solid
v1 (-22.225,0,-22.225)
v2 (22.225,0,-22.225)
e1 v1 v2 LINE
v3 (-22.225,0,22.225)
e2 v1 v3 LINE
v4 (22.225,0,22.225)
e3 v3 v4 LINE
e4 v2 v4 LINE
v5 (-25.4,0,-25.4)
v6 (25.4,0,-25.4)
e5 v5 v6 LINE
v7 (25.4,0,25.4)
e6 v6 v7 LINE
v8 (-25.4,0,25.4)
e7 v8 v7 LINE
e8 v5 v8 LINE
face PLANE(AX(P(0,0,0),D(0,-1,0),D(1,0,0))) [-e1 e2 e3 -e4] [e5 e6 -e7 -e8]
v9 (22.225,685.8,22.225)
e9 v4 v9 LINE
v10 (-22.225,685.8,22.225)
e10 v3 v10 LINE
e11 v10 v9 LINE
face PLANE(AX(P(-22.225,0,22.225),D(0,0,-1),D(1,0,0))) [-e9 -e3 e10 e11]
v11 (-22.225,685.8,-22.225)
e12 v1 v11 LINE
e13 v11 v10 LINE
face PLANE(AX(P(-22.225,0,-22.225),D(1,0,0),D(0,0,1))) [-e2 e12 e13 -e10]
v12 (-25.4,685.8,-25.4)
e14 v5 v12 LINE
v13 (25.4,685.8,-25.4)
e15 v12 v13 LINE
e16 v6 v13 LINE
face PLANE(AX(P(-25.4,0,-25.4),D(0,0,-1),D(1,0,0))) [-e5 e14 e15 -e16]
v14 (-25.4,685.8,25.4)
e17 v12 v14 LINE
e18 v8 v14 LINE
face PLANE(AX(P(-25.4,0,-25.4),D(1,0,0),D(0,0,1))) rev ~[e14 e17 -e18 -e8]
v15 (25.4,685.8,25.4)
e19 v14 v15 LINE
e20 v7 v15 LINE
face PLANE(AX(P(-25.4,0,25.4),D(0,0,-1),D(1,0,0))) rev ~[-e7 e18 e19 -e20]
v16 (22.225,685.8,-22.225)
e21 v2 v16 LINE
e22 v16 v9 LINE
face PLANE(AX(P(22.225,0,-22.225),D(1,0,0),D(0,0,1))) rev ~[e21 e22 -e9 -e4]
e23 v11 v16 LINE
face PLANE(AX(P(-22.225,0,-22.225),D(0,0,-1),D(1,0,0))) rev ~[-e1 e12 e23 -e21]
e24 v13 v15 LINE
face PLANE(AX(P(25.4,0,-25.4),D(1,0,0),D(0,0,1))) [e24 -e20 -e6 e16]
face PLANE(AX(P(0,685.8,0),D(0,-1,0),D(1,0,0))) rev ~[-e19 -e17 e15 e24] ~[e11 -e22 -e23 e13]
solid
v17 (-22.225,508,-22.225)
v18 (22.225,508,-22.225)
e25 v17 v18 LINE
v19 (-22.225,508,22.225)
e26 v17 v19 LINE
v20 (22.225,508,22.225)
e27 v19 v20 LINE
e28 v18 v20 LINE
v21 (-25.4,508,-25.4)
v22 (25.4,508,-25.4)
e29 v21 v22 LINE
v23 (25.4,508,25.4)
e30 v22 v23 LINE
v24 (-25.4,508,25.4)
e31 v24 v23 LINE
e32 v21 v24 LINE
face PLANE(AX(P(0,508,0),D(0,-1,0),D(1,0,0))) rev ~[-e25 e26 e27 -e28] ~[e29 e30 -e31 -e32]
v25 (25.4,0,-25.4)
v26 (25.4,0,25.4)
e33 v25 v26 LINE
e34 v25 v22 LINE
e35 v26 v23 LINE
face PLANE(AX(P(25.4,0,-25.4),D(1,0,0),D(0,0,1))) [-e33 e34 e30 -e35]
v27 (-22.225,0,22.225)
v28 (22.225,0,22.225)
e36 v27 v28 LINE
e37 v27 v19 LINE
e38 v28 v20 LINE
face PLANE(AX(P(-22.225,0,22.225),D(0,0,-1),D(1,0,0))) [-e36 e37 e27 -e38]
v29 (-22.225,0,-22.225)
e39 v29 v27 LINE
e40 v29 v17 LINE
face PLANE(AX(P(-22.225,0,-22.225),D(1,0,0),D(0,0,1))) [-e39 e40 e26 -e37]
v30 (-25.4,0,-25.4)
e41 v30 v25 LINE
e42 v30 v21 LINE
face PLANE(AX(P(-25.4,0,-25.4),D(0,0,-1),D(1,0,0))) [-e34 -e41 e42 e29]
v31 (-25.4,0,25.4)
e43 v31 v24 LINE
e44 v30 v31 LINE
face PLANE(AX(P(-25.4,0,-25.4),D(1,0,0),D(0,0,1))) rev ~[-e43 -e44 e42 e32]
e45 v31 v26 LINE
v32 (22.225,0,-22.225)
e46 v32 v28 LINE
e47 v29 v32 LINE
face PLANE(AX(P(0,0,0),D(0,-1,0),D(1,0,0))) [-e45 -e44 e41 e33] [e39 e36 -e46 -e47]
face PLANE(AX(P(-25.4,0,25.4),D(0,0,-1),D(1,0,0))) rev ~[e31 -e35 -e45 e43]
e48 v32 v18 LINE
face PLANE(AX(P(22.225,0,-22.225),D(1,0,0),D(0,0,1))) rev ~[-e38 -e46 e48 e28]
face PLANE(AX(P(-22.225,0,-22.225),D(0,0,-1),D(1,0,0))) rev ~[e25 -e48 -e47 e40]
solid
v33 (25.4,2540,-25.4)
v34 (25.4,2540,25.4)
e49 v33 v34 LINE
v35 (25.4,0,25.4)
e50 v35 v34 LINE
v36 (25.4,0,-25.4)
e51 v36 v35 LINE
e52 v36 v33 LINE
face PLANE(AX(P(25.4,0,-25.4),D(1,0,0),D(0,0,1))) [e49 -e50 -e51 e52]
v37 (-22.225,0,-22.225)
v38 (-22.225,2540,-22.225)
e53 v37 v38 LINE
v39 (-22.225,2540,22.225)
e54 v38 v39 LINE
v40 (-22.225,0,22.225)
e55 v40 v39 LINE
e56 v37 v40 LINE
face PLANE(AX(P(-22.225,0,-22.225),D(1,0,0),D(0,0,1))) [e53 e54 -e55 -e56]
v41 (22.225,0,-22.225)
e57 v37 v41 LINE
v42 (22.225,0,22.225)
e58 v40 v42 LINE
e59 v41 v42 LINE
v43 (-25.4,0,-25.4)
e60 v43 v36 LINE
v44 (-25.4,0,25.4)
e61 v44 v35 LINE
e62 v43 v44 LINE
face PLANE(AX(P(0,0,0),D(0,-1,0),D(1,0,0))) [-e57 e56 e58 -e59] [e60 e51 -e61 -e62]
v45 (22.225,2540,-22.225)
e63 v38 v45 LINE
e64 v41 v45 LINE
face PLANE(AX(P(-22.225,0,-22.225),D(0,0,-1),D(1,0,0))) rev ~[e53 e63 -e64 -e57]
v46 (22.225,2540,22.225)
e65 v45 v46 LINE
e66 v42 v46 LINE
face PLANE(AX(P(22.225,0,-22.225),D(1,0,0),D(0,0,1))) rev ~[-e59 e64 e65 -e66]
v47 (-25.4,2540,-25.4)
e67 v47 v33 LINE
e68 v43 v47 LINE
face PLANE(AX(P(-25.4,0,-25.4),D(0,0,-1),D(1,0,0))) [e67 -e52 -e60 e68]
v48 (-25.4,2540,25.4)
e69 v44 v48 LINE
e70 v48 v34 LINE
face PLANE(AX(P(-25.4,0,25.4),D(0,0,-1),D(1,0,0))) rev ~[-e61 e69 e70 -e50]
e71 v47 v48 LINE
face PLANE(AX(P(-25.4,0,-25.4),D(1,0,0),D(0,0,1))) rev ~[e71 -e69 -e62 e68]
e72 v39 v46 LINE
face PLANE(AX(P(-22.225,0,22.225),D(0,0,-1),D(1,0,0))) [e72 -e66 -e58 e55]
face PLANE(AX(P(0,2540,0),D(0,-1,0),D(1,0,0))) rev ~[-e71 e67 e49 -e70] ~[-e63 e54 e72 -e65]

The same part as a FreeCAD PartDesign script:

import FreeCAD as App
import Part
import Sketcher
Q = App.Units.Quantity


def add_polygon(sketch, points):
    """Adds a closed chain of lines whose ends are joined by coincident constraints."""
    first, n = sketch.GeometryCount, len(points)
    for a, b in zip(points, points[1:] + points[:1]):
        sketch.addGeometry(Part.LineSegment(App.Vector(*a, 0), App.Vector(*b, 0)), False)
    for i in range(n):
        sketch.addConstraint(Sketcher.Constraint("Coincident", first + i, 2, first + (i + 1) % n, 1))

doc = App.newDocument("Part")
body = doc.addObject("PartDesign::Body", "Body")

sketch1 = body.newObject("Sketcher::SketchObject", "Sketch")
sketch1.AttachmentSupport = (doc.getObject("XZ_Plane"), [""])
sketch1.MapMode = "FlatFace"
add_polygon(sketch1, [(-25.4, 25.4), (-25.4, -25.4), (25.4, -25.4), (25.4, 25.4)])
add_polygon(sketch1, [(22.225, -22.225), (-22.225, -22.225), (-22.225, 22.225), (22.225, 22.225)])
sketch1.addConstraint(Sketcher.Constraint("Vertical", 0))
sketch1.addConstraint(Sketcher.Constraint("Horizontal", 1))
sketch1.addConstraint(Sketcher.Constraint("Vertical", 2))
sketch1.addConstraint(Sketcher.Constraint("Horizontal", 3))
sketch1.addConstraint(Sketcher.Constraint("Horizontal", 4))
sketch1.addConstraint(Sketcher.Constraint("Vertical", 5))
sketch1.addConstraint(Sketcher.Constraint("Horizontal", 6))
sketch1.addConstraint(Sketcher.Constraint("Vertical", 7))
sketch1.addConstraint(Sketcher.Constraint("Symmetric", 0, 2, 2, 2, -1, 1))
sketch1.addConstraint(Sketcher.Constraint("Symmetric", 4, 2, 6, 2, -1, 1))
sketch1.addConstraint(Sketcher.Constraint("Equal", 3, 0))
sketch1.addConstraint(Sketcher.Constraint("Equal", 6, 5))
sketch1.addConstraint(Sketcher.Constraint("DistanceX", 1, 1, 1, 2, Q("2 in")))
sketch1.addConstraint(Sketcher.Constraint("DistanceX", 4, 2, 4, 1, Q("1.75 in")))
pad1 = body.newObject("PartDesign::Pad", "Pad")
pad1.Profile = sketch1
pad1.Length = Q("100 in")
pad1.Reversed = True
body2 = doc.addObject("PartDesign::Body", "Body001")

sketch2 = body2.newObject("Sketcher::SketchObject", "Sketch001")
sketch2.AttachmentSupport = (doc.getObject("XZ_Plane001"), [""])
sketch2.MapMode = "FlatFace"
add_polygon(sketch2, [(-25.4, 25.4), (-25.4, -25.4), (25.4, -25.4), (25.4, 25.4)])
add_polygon(sketch2, [(22.225, -22.225), (-22.225, -22.225), (-22.225, 22.225), (22.225, 22.225)])
sketch2.addConstraint(Sketcher.Constraint("Vertical", 0))
sketch2.addConstraint(Sketcher.Constraint("Horizontal", 1))
sketch2.addConstraint(Sketcher.Constraint("Vertical", 2))
sketch2.addConstraint(Sketcher.Constraint("Horizontal", 3))
sketch2.addConstraint(Sketcher.Constraint("Horizontal", 4))
sketch2.addConstraint(Sketcher.Constraint("Vertical", 5))
sketch2.addConstraint(Sketcher.Constraint("Horizontal", 6))
sketch2.addConstraint(Sketcher.Constraint("Vertical", 7))
sketch2.addConstraint(Sketcher.Constraint("Symmetric", 0, 2, 2, 2, -1, 1))
sketch2.addConstraint(Sketcher.Constraint("Symmetric", 4, 2, 6, 2, -1, 1))
sketch2.addConstraint(Sketcher.Constraint("Equal", 3, 0))
sketch2.addConstraint(Sketcher.Constraint("Equal", 6, 5))
sketch2.addConstraint(Sketcher.Constraint("DistanceX", 1, 1, 1, 2, Q("2 in")))
sketch2.addConstraint(Sketcher.Constraint("DistanceX", 4, 2, 4, 1, Q("1.75 in")))
pad2 = body2.newObject("PartDesign::Pad", "Pad001")
pad2.Profile = sketch2
pad2.Length = Q("27 in")
pad2.Reversed = True
body3 = doc.addObject("PartDesign::Body", "Body002")

sketch3 = body3.newObject("Sketcher::SketchObject", "Sketch002")
sketch3.AttachmentSupport = (doc.getObject("XZ_Plane002"), [""])
sketch3.MapMode = "FlatFace"
add_polygon(sketch3, [(-25.4, 25.4), (-25.4, -25.4), (25.4, -25.4), (25.4, 25.4)])
add_polygon(sketch3, [(22.225, -22.225), (-22.225, -22.225), (-22.225, 22.225), (22.225, 22.225)])
sketch3.addConstraint(Sketcher.Constraint("Vertical", 0))
sketch3.addConstraint(Sketcher.Constraint("Horizontal", 1))
sketch3.addConstraint(Sketcher.Constraint("Vertical", 2))
sketch3.addConstraint(Sketcher.Constraint("Horizontal", 3))
sketch3.addConstraint(Sketcher.Constraint("Horizontal", 4))
sketch3.addConstraint(Sketcher.Constraint("Vertical", 5))
sketch3.addConstraint(Sketcher.Constraint("Horizontal", 6))
sketch3.addConstraint(Sketcher.Constraint("Vertical", 7))
sketch3.addConstraint(Sketcher.Constraint("Symmetric", 0, 2, 2, 2, -1, 1))
sketch3.addConstraint(Sketcher.Constraint("Symmetric", 4, 2, 6, 2, -1, 1))
sketch3.addConstraint(Sketcher.Constraint("Equal", 3, 0))
sketch3.addConstraint(Sketcher.Constraint("Equal", 6, 5))
sketch3.addConstraint(Sketcher.Constraint("DistanceX", 1, 1, 1, 2, Q("2 in")))
sketch3.addConstraint(Sketcher.Constraint("DistanceX", 4, 2, 4, 1, Q("1.75 in")))
pad3 = body3.newObject("PartDesign::Pad", "Pad002")
pad3.Profile = sketch3
pad3.Length = Q("20 in")
pad3.Reversed = True

doc.recompute()
